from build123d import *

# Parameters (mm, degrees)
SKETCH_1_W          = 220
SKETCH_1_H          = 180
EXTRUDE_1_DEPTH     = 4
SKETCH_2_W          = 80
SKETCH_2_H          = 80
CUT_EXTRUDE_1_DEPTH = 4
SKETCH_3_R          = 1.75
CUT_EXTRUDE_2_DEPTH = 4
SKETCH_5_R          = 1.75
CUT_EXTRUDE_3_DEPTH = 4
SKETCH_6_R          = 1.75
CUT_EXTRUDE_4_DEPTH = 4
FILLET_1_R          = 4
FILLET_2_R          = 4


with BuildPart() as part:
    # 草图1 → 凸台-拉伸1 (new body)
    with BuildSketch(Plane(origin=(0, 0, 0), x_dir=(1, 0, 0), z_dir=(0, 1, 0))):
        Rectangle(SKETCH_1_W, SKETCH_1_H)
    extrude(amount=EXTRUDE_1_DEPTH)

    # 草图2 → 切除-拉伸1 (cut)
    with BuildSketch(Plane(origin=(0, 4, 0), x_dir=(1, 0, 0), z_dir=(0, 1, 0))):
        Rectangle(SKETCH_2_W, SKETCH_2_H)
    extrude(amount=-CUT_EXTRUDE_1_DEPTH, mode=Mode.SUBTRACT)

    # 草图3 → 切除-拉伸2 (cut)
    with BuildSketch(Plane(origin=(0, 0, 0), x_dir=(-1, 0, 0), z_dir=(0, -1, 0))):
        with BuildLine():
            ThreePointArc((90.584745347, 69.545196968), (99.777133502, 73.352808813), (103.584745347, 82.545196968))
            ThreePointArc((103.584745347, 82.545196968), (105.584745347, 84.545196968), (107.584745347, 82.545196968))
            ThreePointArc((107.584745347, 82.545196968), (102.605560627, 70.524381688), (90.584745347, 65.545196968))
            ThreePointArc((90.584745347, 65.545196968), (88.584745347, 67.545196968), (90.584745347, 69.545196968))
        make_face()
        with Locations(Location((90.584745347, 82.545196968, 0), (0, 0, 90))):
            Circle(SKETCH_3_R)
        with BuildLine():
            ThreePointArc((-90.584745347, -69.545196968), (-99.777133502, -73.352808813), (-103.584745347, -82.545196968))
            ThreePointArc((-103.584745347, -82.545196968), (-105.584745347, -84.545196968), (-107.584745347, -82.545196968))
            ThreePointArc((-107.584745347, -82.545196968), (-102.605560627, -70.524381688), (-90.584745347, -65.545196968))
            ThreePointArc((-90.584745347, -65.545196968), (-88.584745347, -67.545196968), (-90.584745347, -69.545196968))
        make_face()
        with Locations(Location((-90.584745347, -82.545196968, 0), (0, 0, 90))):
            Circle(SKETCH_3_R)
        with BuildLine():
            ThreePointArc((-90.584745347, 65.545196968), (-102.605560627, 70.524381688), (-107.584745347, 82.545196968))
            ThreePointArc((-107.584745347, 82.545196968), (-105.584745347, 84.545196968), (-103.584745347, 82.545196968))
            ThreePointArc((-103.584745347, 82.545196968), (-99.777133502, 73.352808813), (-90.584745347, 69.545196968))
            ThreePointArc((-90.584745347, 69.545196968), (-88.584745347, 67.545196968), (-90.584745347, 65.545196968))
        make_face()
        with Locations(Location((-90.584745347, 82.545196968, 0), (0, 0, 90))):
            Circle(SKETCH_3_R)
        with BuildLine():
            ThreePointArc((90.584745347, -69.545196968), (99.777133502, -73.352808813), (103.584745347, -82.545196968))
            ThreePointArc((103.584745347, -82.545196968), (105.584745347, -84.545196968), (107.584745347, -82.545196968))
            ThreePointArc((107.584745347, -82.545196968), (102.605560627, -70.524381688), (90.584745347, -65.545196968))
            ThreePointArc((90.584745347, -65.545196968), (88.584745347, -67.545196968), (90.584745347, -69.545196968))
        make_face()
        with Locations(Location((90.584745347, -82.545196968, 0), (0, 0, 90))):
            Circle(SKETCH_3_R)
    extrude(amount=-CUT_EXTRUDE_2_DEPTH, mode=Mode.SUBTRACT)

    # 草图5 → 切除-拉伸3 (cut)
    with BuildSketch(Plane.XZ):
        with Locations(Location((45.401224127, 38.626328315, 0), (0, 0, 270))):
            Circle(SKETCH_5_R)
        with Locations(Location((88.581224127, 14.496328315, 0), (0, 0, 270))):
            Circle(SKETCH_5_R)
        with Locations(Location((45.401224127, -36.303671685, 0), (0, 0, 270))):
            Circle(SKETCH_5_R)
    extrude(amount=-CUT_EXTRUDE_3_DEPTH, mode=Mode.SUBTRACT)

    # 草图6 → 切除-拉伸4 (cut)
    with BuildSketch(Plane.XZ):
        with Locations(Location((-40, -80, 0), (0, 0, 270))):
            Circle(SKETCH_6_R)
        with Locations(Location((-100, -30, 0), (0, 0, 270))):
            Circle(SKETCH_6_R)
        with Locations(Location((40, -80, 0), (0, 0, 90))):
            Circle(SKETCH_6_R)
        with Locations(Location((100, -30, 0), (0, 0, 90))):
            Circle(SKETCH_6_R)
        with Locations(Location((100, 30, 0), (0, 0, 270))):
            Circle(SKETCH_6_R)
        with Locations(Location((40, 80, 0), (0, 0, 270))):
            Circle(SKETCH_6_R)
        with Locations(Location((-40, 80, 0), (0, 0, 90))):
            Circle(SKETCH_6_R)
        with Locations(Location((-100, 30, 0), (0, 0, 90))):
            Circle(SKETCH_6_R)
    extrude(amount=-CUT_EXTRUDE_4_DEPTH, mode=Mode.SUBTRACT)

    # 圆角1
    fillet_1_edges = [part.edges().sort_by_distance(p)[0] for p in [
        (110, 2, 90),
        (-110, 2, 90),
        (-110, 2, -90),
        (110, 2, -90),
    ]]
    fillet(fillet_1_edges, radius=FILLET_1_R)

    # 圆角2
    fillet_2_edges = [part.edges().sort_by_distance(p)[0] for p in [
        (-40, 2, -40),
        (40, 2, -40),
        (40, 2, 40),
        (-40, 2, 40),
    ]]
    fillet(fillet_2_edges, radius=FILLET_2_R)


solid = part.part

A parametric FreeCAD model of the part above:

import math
import FreeCAD as App
import Part
import Sketcher
from FreeCAD import Vector
Q = App.Units.Quantity


def edges_at(feature, points):
    """Names of the edges that pass closest to the given points."""
    edges = feature.Shape.Edges
    near = lambda p: min(range(len(edges)), key=lambda i: edges[i].distToShape(Part.Vertex(*p))[0])
    return sorted({f"Edge{near(p) + 1}" for p in points})

doc = App.newDocument("Part")
body = doc.addObject("PartDesign::Body", "Body")

# Sketch on XZ plane
sketch1 = body.newObject("Sketcher::SketchObject", "Sketch")
sketch1.AttachmentSupport = (doc.getObject("XZ_Plane"), [""])
sketch1.MapMode = "FlatFace"
sketch1.addGeometry(Part.LineSegment(Vector(-110, -90, 0), Vector(-110, 90, 0)), False)
sketch1.addGeometry(Part.LineSegment(Vector(-110, 90, 0), Vector(110, 90, 0)), False)
sketch1.addGeometry(Part.LineSegment(Vector(110, 90, 0), Vector(110, -90, 0)), False)
sketch1.addGeometry(Part.LineSegment(Vector(110, -90, 0), Vector(-110, -90, 0)), False)
sketch1.addConstraint(Sketcher.Constraint("Coincident", 0, 2, 1, 1))
sketch1.addConstraint(Sketcher.Constraint("Coincident", 1, 2, 2, 1))
sketch1.addConstraint(Sketcher.Constraint("Coincident", 2, 2, 3, 1))
sketch1.addConstraint(Sketcher.Constraint("Coincident", 3, 2, 0, 1))
sketch1.addConstraint(Sketcher.Constraint("Vertical", 0))
sketch1.addConstraint(Sketcher.Constraint("Horizontal", 1))
sketch1.addConstraint(Sketcher.Constraint("Vertical", 2))
sketch1.addConstraint(Sketcher.Constraint("Horizontal", 3))
sketch1.addConstraint(Sketcher.Constraint("Symmetric", 0, 2, 2, 2, -1, 1))
sketch1.addConstraint(Sketcher.Constraint("DistanceX", 1, 1, 1, 2, Q("220 mm")))
sketch1.addConstraint(Sketcher.Constraint("DistanceY", 0, 1, 0, 2, Q("180 mm")))
pad1 = body.newObject("PartDesign::Pad", "Pad")
pad1.Profile = sketch1
pad1.Length = 4
pad1.Reversed = True

# Sketch on XZ plane
sketch2 = body.newObject("Sketcher::SketchObject", "Sketch001")
sketch2.AttachmentSupport = (doc.getObject("XZ_Plane"), [""])
sketch2.MapMode = "FlatFace"
sketch2.AttachmentOffset = App.Placement(Vector(0, 0, -4), App.Rotation())
sketch2.addGeometry(Part.LineSegment(Vector(-40, -40, 0), Vector(-40, 40, 0)), False)
sketch2.addGeometry(Part.LineSegment(Vector(-40, 40, 0), Vector(40, 40, 0)), False)
sketch2.addGeometry(Part.LineSegment(Vector(40, 40, 0), Vector(40, -40, 0)), False)
sketch2.addGeometry(Part.LineSegment(Vector(40, -40, 0), Vector(-40, -40, 0)), False)
sketch2.addConstraint(Sketcher.Constraint("Coincident", 0, 2, 1, 1))
sketch2.addConstraint(Sketcher.Constraint("Coincident", 1, 2, 2, 1))
sketch2.addConstraint(Sketcher.Constraint("Coincident", 2, 2, 3, 1))
sketch2.addConstraint(Sketcher.Constraint("Coincident", 3, 2, 0, 1))
sketch2.addConstraint(Sketcher.Constraint("Vertical", 0))
sketch2.addConstraint(Sketcher.Constraint("Horizontal", 1))
sketch2.addConstraint(Sketcher.Constraint("Vertical", 2))
sketch2.addConstraint(Sketcher.Constraint("Horizontal", 3))
sketch2.addConstraint(Sketcher.Constraint("Symmetric", 0, 2, 2, 2, -1, 1))
sketch2.addConstraint(Sketcher.Constraint("Equal", 3, 0))
sketch2.addConstraint(Sketcher.Constraint("DistanceX", 1, 1, 1, 2, Q("80 mm")))
pocket1 = body.newObject("PartDesign::Pocket", "Pocket")
pocket1.Profile = sketch2
pocket1.Length = 4
pocket1.Reversed = True

# Sketch on XZ plane
sketch3 = body.newObject("Sketcher::SketchObject", "Sketch002")
sketch3.AttachmentSupport = (doc.getObject("XZ_Plane"), [""])
sketch3.MapMode = "FlatFace"
sketch3.addGeometry(Part.ArcOfCircle(Part.Circle(Vector(-90.584745, -82.545197, 0), Vector(0, 0, 1), 13), math.radians(90), math.radians(180)), False)
sketch3.addGeometry(Part.ArcOfCircle(Part.Circle(Vector(-90.584745, -67.545197, 0), Vector(0, 0, 1), 2), math.radians(-90), math.radians(90)), False)
sketch3.addGeometry(Part.ArcOfCircle(Part.Circle(Vector(-90.584745, -82.545197, 0), Vector(0, 0, 1), 17), math.radians(90), math.radians(180)), False)
sketch3.addGeometry(Part.ArcOfCircle(Part.Circle(Vector(-105.584745, -82.545197, 0), Vector(0, 0, 1), 2), math.radians(180), math.radians(360)), False)
sketch3.addGeometry(Part.Circle(Vector(-90.584745, -82.545197, 0), Vector(0, 0, 1), 1.75), False)
sketch3.addGeometry(Part.ArcOfCircle(Part.Circle(Vector(90.584745, 82.545197, 0), Vector(0, 0, 1), 13), math.radians(-90), math.radians(0)), False)
sketch3.addGeometry(Part.ArcOfCircle(Part.Circle(Vector(90.584745, 67.545197, 0), Vector(0, 0, 1), 2), math.radians(90), math.radians(270)), False)
sketch3.addGeometry(Part.ArcOfCircle(Part.Circle(Vector(90.584745, 82.545197, 0), Vector(0, 0, 1), 17), math.radians(-90), math.radians(0)), False)
sketch3.addGeometry(Part.ArcOfCircle(Part.Circle(Vector(105.584745, 82.545197, 0), Vector(0, 0, 1), 2), math.radians(0), math.radians(180)), False)
sketch3.addGeometry(Part.Circle(Vector(90.584745, 82.545197, 0), Vector(0, 0, 1), 1.75), False)
sketch3.addGeometry(Part.ArcOfCircle(Part.Circle(Vector(90.584745, -82.545197, 0), Vector(0, 0, 1), 17), math.radians(0), math.radians(90)), False)
sketch3.addGeometry(Part.ArcOfCircle(Part.Circle(Vector(90.584745, -67.545197, 0), Vector(0, 0, 1), 2), math.radians(90), math.radians(270)), False)
sketch3.addGeometry(Part.ArcOfCircle(Part.Circle(Vector(90.584745, -82.545197, 0), Vector(0, 0, 1), 13), math.radians(0), math.radians(90)), False)
sketch3.addGeometry(Part.ArcOfCircle(Part.Circle(Vector(105.584745, -82.545197, 0), Vector(0, 0, 1), 2), math.radians(180), math.radians(360)), False)
sketch3.addGeometry(Part.Circle(Vector(90.584745, -82.545197, 0), Vector(0, 0, 1), 1.75), False)
sketch3.addGeometry(Part.ArcOfCircle(Part.Circle(Vector(-90.584745, 82.545197, 0), Vector(0, 0, 1), 13), math.radians(-180), math.radians(-90)), False)
sketch3.addGeometry(Part.ArcOfCircle(Part.Circle(Vector(-105.584745, 82.545197, 0), Vector(0, 0, 1), 2), math.radians(0), math.radians(180)), False)
sketch3.addGeometry(Part.ArcOfCircle(Part.Circle(Vector(-90.584745, 82.545197, 0), Vector(0, 0, 1), 17), math.radians(-180), math.radians(-90)), False)
sketch3.addGeometry(Part.ArcOfCircle(Part.Circle(Vector(-90.584745, 67.545197, 0), Vector(0, 0, 1), 2), math.radians(-90), math.radians(90)), False)
sketch3.addGeometry(Part.Circle(Vector(-90.584745, 82.545197, 0), Vector(0, 0, 1), 1.75), False)
sketch3.addConstraint(Sketcher.Constraint("Tangent", 0, 1, 1, 1))
sketch3.addConstraint(Sketcher.Constraint("Tangent", 1, 2, 2, 1))
sketch3.addConstraint(Sketcher.Constraint("Tangent", 2, 2, 3, 1))
sketch3.addConstraint(Sketcher.Constraint("Tangent", 3, 2, 0, 2))
sketch3.addConstraint(Sketcher.Constraint("Tangent", 5, 1, 6, 1))
sketch3.addConstraint(Sketcher.Constraint("Tangent", 6, 2, 7, 1))
sketch3.addConstraint(Sketcher.Constraint("Tangent", 7, 2, 8, 1))
sketch3.addConstraint(Sketcher.Constraint("Tangent", 8, 2, 5, 2))
sketch3.addConstraint(Sketcher.Constraint("Tangent", 10, 2, 11, 1))
sketch3.addConstraint(Sketcher.Constraint("Tangent", 11, 2, 12, 2))
sketch3.addConstraint(Sketcher.Constraint("Tangent", 12, 1, 13, 1))
sketch3.addConstraint(Sketcher.Constraint("Tangent", 13, 2, 10, 1))
sketch3.addConstraint(Sketcher.Constraint("Tangent", 15, 1, 16, 1))
sketch3.addConstraint(Sketcher.Constraint("Tangent", 16, 2, 17, 1))
sketch3.addConstraint(Sketcher.Constraint("Tangent", 17, 2, 18, 1))
sketch3.addConstraint(Sketcher.Constraint("Tangent", 18, 2, 15, 2))
sketch3.addConstraint(Sketcher.Constraint("Coincident", 2, 3, 0, 3))
sketch3.addConstraint(Sketcher.Constraint("Coincident", 4, 3, 0, 3))
sketch3.addConstraint(Sketcher.Constraint("Coincident", 7, 3, 5, 3))
sketch3.addConstraint(Sketcher.Constraint("Coincident", 9, 3, 5, 3))
sketch3.addConstraint(Sketcher.Constraint("Coincident", 12, 3, 10, 3))
sketch3.addConstraint(Sketcher.Constraint("Coincident", 14, 3, 10, 3))
sketch3.addConstraint(Sketcher.Constraint("Coincident", 17, 3, 15, 3))
sketch3.addConstraint(Sketcher.Constraint("Coincident", 19, 3, 15, 3))
sketch3.addConstraint(Sketcher.Constraint("Equal", 0, 5))
sketch3.addConstraint(Sketcher.Constraint("Equal", 3, 6))
sketch3.addConstraint(Sketcher.Constraint("Equal", 4, 9))
sketch3.addConstraint(Sketcher.Constraint("Equal", 7, 10))
sketch3.addConstraint(Sketcher.Constraint("Equal", 8, 11))
sketch3.addConstraint(Sketcher.Constraint("Equal", 9, 14))
sketch3.addConstraint(Sketcher.Constraint("Equal", 12, 15))
sketch3.addConstraint(Sketcher.Constraint("Equal", 13, 16))
sketch3.addConstraint(Sketcher.Constraint("Equal", 14, 19))
sketch3.addConstraint(Sketcher.Constraint("Symmetric", 0, 3, 5, 3, -1, 1))
sketch3.addConstraint(Sketcher.Constraint("Symmetric", 10, 3, 15, 3, -1, 1))
sketch3.addConstraint(Sketcher.Constraint("Symmetric", 0, 3, 10, 3, -2))
sketch3.addConstraint(Sketcher.Constraint("Horizontal", 2, 3, 3, 3))
sketch3.addConstraint(Sketcher.Constraint("Horizontal", 7, 3, 8, 3))
sketch3.addConstraint(Sketcher.Constraint("Horizontal", 12, 3, 13, 3))
sketch3.addConstraint(Sketcher.Constraint("Horizontal", 15, 3, 16, 3))
sketch3.addConstraint(Sketcher.Constraint("Vertical", 0, 3, 1, 3))
sketch3.addConstraint(Sketcher.Constraint("Vertical", 5, 3, 6, 3))
sketch3.addConstraint(Sketcher.Constraint("Vertical", 10, 3, 11, 3))
sketch3.addConstraint(Sketcher.Constraint("Vertical", 17, 3, 18, 3))
sketch3.addConstraint(Sketcher.Constraint("Radius", 0, Q("13 mm")))
sketch3.addConstraint(Sketcher.Constraint("Radius", 1, Q("2 mm")))
sketch3.addConstraint(Sketcher.Constraint("Diameter", 4, Q("3.5 mm")))
sketch3.addConstraint(Sketcher.Constraint("DistanceX", 1, 3, 5, 3, Q("181.169491 mm")))
sketch3.addConstraint(Sketcher.Constraint("DistanceY", 0, 3, -1, 1, Q("82.545197 mm")))
pocket2 = body.newObject("PartDesign::Pocket", "Pocket001")
pocket2.Profile = sketch3
pocket2.Length = 4

# Sketch on XZ plane
sketch4 = body.newObject("Sketcher::SketchObject", "Sketch003")
sketch4.AttachmentSupport = (doc.getObject("XZ_Plane"), [""])
sketch4.MapMode = "FlatFace"
sketch4.addGeometry(Part.Circle(Vector(45.401224, 38.626328, 0), Vector(0, 0, 1), 1.75), False)
sketch4.addGeometry(Part.Circle(Vector(88.581224, 14.496328, 0), Vector(0, 0, 1), 1.75), False)
sketch4.addGeometry(Part.Circle(Vector(45.401224, -36.303672, 0), Vector(0, 0, 1), 1.75), False)
sketch4.addConstraint(Sketcher.Constraint("Equal", 0, 1))
sketch4.addConstraint(Sketcher.Constraint("Equal", 1, 2))
sketch4.addConstraint(Sketcher.Constraint("Vertical", 0, 3, 2, 3))
sketch4.addConstraint(Sketcher.Constraint("Diameter", 0, Q("3.5 mm")))
sketch4.addConstraint(Sketcher.Constraint("DistanceY", 2, 3, 1, 3, Q("50.8 mm")))
sketch4.addConstraint(Sketcher.Constraint("DistanceX", 0, 3, 1, 3, Q("43.18 mm")))
sketch4.addConstraint(Sketcher.Constraint("DistanceY", 1, 3, 0, 3, Q("24.13 mm")))
sketch4.addConstraint(Sketcher.Constraint("DistanceY", -1, 1, 0, 3, Q("38.626328 mm")))
sketch4.addConstraint(Sketcher.Constraint("DistanceX", -1, 1, 0, 3, Q("45.401224 mm")))
pocket3 = body.newObject("PartDesign::Pocket", "Pocket002")
pocket3.Profile = sketch4
pocket3.Length = 4

# Sketch on XZ plane
sketch5 = body.newObject("Sketcher::SketchObject", "Sketch004")
sketch5.AttachmentSupport = (doc.getObject("XZ_Plane"), [""])
sketch5.MapMode = "FlatFace"
sketch5.addGeometry(Part.Circle(Vector(-40, -80, 0), Vector(0, 0, 1), 1.75), False)
sketch5.addGeometry(Part.Circle(Vector(-100, -30, 0), Vector(0, 0, 1), 1.75), False)
sketch5.addGeometry(Part.Circle(Vector(40, -80, 0), Vector(0, 0, 1), 1.75), False)
sketch5.addGeometry(Part.Circle(Vector(100, -30, 0), Vector(0, 0, 1), 1.75), False)
sketch5.addGeometry(Part.Circle(Vector(100, 30, 0), Vector(0, 0, 1), 1.75), False)
sketch5.addGeometry(Part.Circle(Vector(40, 80, 0), Vector(0, 0, 1), 1.75), False)
sketch5.addGeometry(Part.Circle(Vector(-40, 80, 0), Vector(0, 0, 1), 1.75), False)
sketch5.addGeometry(Part.Circle(Vector(-100, 30, 0), Vector(0, 0, 1), 1.75), False)
sketch5.addConstraint(Sketcher.Constraint("Equal", 0, 1))
sketch5.addConstraint(Sketcher.Constraint("Equal", 1, 2))
sketch5.addConstraint(Sketcher.Constraint("Equal", 2, 3))
sketch5.addConstraint(Sketcher.Constraint("Equal", 3, 4))
sketch5.addConstraint(Sketcher.Constraint("Equal", 4, 5))
sketch5.addConstraint(Sketcher.Constraint("Equal", 5, 6))
sketch5.addConstraint(Sketcher.Constraint("Equal", 6, 7))
sketch5.addConstraint(Sketcher.Constraint("Symmetric", 1, 3, 4, 3, -1, 1))
sketch5.addConstraint(Sketcher.Constraint("Symmetric", 0, 3, 5, 3, -1, 1))
sketch5.addConstraint(Sketcher.Constraint("Symmetric", 2, 3, 6, 3, -1, 1))
sketch5.addConstraint(Sketcher.Constraint("Symmetric", 3, 3, 7, 3, -1, 1))
sketch5.addConstraint(Sketcher.Constraint("Symmetric", 0, 3, 2, 3, -2))
sketch5.addConstraint(Sketcher.Constraint("Symmetric", 1, 3, 3, 3, -2))
sketch5.addConstraint(Sketcher.Constraint("Diameter", 0, Q("3.5 mm")))
sketch5.addConstraint(Sketcher.Constraint("DistanceX", 0, 3, -1, 1, Q("40 mm")))
sketch5.addConstraint(Sketcher.Constraint("DistanceY", 0, 3, -1, 1, Q("80 mm")))
sketch5.addConstraint(Sketcher.Constraint("DistanceX", 1, 3, -1, 1, Q("100 mm")))
sketch5.addConstraint(Sketcher.Constraint("DistanceY", 1, 3, -1, 1, Q("30 mm")))
pocket4 = body.newObject("PartDesign::Pocket", "Pocket003")
pocket4.Profile = sketch5
pocket4.Length = 4
doc.recompute()

fillet = body.newObject("PartDesign::Fillet", "Fillet")
fillet.Base = (pocket4, edges_at(pocket4, [
    (110, 2, 90),
    (-110, 2, 90),
    (-110, 2, -90),
    (110, 2, -90),
]))
fillet.Radius = 4
doc.recompute()

fillet2 = body.newObject("PartDesign::Fillet", "Fillet001")
fillet2.Base = (fillet, edges_at(fillet, [
    (-40, 2, -40),
    (40, 2, -40),
    (40, 2, 40),
    (-40, 2, 40),
]))
fillet2.Radius = 4

doc.recompute()
